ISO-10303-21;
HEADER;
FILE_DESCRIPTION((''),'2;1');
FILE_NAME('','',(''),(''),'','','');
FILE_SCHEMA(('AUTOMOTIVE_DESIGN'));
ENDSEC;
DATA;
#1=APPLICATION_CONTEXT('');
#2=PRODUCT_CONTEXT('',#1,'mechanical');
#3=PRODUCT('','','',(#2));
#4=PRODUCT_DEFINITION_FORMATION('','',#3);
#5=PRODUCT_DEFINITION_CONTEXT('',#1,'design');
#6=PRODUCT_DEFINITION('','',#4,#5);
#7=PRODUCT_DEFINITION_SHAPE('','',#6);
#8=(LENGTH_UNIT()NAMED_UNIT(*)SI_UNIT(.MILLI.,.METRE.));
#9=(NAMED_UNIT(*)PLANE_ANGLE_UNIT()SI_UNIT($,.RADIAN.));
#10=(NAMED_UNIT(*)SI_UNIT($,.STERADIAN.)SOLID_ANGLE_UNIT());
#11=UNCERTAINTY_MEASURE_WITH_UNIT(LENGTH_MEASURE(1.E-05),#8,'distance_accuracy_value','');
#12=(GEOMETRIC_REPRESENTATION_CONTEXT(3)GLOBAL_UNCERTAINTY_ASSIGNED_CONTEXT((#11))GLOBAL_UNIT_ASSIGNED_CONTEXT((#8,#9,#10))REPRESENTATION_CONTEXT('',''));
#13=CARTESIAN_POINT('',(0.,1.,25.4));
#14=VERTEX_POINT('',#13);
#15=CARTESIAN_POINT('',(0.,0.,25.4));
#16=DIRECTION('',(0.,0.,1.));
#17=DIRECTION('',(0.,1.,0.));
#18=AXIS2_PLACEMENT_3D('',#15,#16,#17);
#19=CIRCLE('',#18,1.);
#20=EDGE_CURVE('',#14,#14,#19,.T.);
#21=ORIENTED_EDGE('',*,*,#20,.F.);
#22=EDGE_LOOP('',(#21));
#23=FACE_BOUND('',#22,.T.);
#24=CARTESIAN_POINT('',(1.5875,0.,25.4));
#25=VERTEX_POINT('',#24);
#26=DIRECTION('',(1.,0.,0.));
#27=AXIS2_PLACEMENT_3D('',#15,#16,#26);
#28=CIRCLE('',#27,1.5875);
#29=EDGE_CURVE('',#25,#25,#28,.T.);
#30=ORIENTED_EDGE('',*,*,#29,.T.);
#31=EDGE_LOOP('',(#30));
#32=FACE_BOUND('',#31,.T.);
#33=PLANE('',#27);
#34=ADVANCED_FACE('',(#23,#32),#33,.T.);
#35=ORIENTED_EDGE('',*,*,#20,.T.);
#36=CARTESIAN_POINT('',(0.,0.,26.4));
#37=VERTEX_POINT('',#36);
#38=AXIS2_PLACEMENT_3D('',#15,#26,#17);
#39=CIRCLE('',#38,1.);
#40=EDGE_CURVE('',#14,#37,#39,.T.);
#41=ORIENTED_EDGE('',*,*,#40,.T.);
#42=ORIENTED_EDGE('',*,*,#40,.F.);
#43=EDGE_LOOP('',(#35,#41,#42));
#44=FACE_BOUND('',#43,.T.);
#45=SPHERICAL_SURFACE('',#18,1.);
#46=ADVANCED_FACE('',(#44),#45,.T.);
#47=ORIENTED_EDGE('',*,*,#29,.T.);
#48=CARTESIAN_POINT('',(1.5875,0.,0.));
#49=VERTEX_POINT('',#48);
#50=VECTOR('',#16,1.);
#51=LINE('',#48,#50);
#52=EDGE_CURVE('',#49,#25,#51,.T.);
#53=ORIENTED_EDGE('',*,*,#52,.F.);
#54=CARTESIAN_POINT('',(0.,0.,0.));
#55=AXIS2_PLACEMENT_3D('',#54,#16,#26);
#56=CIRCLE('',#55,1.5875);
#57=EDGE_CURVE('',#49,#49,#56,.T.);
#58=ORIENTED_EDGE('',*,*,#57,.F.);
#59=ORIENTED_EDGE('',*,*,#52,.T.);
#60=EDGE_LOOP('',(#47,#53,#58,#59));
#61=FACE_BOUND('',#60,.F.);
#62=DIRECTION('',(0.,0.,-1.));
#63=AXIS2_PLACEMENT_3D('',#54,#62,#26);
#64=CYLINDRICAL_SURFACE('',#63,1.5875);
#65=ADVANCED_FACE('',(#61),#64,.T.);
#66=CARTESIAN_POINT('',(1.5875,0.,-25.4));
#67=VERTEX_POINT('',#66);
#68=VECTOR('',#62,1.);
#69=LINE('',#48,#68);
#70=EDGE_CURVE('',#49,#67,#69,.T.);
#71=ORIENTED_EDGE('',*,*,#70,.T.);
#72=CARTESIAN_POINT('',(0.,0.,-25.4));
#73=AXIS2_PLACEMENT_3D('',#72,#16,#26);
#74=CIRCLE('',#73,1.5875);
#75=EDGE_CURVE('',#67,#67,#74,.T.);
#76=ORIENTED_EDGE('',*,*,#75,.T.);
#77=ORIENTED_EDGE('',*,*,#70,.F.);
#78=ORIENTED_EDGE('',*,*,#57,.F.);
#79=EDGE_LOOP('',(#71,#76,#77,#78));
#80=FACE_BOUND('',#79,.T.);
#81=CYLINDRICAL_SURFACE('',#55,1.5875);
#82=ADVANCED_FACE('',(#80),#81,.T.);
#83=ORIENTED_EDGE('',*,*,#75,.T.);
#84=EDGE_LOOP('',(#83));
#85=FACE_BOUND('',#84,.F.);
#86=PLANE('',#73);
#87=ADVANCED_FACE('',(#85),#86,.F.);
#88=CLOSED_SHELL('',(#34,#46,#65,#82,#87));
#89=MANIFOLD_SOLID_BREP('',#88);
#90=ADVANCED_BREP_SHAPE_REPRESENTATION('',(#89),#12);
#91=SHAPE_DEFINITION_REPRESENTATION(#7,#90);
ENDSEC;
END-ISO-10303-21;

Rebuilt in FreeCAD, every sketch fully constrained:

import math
import FreeCAD as App
import Part
import Sketcher

V = App.Vector

doc = App.newDocument("Part")
body = doc.addObject("PartDesign::Body", "Body")

sketch1 = body.newObject("Sketcher::SketchObject", "Sketch")
sketch1.AttachmentSupport = (doc.getObject("XY_Plane"), [""])
sketch1.MapMode = "FlatFace"
sketch1.addGeometry(Part.Circle(V(0, 0, 0), V(0, 0, 1), 1.6), False)
sketch1.addConstraint(Sketcher.Constraint("Coincident", 0, 3, -1, 1))
sketch1.addConstraint(Sketcher.Constraint("Diameter", 0, 3.175))
pad1 = body.newObject("PartDesign::Pad", "Pad")
pad1.Profile = sketch1
pad1.Length = 50.8
pad1.Midplane = True

sketch2 = body.newObject("Sketcher::SketchObject", "Sketch001")
sketch2.AttachmentSupport = (doc.getObject("YZ_Plane"), [""])
sketch2.MapMode = "FlatFace"
sketch2.addGeometry(Part.LineSegment(V(0, 26.4, 0), V(0, 25.4, 0)), False)
sketch2.addGeometry(Part.LineSegment(V(0, 25.4, 0), V(1, 25.4, 0)), False)
sketch2.addGeometry(Part.ArcOfCircle(Part.Circle(V(0, 25.4, 0), V(0, 0, 1), 1), math.radians(0), math.radians(90)), False)
sketch2.addConstraint(Sketcher.Constraint("Coincident", 0, 2, 1, 1))
sketch2.addConstraint(Sketcher.Constraint("Coincident", 1, 2, 2, 1))
sketch2.addConstraint(Sketcher.Constraint("Coincident", 2, 2, 0, 1))
sketch2.addConstraint(Sketcher.Constraint("Vertical", 0))
sketch2.addConstraint(Sketcher.Constraint("Horizontal", 1))
sketch2.addConstraint(Sketcher.Constraint("Coincident", 0, 2, 2, 3))
sketch2.addConstraint(Sketcher.Constraint("PointOnObject", 2, 3, -2))
sketch2.addConstraint(Sketcher.Constraint("Radius", 2, 1.0))
sketch2.addConstraint(Sketcher.Constraint("DistanceY", -1, 1, 2, 3, 25.4))
revolution = body.newObject("PartDesign::Revolution", "Revolution")
revolution.Profile = sketch2
revolution.ReferenceAxis = (sketch2, ["V_Axis"])
revolution.Angle = 360

doc.recompute()
